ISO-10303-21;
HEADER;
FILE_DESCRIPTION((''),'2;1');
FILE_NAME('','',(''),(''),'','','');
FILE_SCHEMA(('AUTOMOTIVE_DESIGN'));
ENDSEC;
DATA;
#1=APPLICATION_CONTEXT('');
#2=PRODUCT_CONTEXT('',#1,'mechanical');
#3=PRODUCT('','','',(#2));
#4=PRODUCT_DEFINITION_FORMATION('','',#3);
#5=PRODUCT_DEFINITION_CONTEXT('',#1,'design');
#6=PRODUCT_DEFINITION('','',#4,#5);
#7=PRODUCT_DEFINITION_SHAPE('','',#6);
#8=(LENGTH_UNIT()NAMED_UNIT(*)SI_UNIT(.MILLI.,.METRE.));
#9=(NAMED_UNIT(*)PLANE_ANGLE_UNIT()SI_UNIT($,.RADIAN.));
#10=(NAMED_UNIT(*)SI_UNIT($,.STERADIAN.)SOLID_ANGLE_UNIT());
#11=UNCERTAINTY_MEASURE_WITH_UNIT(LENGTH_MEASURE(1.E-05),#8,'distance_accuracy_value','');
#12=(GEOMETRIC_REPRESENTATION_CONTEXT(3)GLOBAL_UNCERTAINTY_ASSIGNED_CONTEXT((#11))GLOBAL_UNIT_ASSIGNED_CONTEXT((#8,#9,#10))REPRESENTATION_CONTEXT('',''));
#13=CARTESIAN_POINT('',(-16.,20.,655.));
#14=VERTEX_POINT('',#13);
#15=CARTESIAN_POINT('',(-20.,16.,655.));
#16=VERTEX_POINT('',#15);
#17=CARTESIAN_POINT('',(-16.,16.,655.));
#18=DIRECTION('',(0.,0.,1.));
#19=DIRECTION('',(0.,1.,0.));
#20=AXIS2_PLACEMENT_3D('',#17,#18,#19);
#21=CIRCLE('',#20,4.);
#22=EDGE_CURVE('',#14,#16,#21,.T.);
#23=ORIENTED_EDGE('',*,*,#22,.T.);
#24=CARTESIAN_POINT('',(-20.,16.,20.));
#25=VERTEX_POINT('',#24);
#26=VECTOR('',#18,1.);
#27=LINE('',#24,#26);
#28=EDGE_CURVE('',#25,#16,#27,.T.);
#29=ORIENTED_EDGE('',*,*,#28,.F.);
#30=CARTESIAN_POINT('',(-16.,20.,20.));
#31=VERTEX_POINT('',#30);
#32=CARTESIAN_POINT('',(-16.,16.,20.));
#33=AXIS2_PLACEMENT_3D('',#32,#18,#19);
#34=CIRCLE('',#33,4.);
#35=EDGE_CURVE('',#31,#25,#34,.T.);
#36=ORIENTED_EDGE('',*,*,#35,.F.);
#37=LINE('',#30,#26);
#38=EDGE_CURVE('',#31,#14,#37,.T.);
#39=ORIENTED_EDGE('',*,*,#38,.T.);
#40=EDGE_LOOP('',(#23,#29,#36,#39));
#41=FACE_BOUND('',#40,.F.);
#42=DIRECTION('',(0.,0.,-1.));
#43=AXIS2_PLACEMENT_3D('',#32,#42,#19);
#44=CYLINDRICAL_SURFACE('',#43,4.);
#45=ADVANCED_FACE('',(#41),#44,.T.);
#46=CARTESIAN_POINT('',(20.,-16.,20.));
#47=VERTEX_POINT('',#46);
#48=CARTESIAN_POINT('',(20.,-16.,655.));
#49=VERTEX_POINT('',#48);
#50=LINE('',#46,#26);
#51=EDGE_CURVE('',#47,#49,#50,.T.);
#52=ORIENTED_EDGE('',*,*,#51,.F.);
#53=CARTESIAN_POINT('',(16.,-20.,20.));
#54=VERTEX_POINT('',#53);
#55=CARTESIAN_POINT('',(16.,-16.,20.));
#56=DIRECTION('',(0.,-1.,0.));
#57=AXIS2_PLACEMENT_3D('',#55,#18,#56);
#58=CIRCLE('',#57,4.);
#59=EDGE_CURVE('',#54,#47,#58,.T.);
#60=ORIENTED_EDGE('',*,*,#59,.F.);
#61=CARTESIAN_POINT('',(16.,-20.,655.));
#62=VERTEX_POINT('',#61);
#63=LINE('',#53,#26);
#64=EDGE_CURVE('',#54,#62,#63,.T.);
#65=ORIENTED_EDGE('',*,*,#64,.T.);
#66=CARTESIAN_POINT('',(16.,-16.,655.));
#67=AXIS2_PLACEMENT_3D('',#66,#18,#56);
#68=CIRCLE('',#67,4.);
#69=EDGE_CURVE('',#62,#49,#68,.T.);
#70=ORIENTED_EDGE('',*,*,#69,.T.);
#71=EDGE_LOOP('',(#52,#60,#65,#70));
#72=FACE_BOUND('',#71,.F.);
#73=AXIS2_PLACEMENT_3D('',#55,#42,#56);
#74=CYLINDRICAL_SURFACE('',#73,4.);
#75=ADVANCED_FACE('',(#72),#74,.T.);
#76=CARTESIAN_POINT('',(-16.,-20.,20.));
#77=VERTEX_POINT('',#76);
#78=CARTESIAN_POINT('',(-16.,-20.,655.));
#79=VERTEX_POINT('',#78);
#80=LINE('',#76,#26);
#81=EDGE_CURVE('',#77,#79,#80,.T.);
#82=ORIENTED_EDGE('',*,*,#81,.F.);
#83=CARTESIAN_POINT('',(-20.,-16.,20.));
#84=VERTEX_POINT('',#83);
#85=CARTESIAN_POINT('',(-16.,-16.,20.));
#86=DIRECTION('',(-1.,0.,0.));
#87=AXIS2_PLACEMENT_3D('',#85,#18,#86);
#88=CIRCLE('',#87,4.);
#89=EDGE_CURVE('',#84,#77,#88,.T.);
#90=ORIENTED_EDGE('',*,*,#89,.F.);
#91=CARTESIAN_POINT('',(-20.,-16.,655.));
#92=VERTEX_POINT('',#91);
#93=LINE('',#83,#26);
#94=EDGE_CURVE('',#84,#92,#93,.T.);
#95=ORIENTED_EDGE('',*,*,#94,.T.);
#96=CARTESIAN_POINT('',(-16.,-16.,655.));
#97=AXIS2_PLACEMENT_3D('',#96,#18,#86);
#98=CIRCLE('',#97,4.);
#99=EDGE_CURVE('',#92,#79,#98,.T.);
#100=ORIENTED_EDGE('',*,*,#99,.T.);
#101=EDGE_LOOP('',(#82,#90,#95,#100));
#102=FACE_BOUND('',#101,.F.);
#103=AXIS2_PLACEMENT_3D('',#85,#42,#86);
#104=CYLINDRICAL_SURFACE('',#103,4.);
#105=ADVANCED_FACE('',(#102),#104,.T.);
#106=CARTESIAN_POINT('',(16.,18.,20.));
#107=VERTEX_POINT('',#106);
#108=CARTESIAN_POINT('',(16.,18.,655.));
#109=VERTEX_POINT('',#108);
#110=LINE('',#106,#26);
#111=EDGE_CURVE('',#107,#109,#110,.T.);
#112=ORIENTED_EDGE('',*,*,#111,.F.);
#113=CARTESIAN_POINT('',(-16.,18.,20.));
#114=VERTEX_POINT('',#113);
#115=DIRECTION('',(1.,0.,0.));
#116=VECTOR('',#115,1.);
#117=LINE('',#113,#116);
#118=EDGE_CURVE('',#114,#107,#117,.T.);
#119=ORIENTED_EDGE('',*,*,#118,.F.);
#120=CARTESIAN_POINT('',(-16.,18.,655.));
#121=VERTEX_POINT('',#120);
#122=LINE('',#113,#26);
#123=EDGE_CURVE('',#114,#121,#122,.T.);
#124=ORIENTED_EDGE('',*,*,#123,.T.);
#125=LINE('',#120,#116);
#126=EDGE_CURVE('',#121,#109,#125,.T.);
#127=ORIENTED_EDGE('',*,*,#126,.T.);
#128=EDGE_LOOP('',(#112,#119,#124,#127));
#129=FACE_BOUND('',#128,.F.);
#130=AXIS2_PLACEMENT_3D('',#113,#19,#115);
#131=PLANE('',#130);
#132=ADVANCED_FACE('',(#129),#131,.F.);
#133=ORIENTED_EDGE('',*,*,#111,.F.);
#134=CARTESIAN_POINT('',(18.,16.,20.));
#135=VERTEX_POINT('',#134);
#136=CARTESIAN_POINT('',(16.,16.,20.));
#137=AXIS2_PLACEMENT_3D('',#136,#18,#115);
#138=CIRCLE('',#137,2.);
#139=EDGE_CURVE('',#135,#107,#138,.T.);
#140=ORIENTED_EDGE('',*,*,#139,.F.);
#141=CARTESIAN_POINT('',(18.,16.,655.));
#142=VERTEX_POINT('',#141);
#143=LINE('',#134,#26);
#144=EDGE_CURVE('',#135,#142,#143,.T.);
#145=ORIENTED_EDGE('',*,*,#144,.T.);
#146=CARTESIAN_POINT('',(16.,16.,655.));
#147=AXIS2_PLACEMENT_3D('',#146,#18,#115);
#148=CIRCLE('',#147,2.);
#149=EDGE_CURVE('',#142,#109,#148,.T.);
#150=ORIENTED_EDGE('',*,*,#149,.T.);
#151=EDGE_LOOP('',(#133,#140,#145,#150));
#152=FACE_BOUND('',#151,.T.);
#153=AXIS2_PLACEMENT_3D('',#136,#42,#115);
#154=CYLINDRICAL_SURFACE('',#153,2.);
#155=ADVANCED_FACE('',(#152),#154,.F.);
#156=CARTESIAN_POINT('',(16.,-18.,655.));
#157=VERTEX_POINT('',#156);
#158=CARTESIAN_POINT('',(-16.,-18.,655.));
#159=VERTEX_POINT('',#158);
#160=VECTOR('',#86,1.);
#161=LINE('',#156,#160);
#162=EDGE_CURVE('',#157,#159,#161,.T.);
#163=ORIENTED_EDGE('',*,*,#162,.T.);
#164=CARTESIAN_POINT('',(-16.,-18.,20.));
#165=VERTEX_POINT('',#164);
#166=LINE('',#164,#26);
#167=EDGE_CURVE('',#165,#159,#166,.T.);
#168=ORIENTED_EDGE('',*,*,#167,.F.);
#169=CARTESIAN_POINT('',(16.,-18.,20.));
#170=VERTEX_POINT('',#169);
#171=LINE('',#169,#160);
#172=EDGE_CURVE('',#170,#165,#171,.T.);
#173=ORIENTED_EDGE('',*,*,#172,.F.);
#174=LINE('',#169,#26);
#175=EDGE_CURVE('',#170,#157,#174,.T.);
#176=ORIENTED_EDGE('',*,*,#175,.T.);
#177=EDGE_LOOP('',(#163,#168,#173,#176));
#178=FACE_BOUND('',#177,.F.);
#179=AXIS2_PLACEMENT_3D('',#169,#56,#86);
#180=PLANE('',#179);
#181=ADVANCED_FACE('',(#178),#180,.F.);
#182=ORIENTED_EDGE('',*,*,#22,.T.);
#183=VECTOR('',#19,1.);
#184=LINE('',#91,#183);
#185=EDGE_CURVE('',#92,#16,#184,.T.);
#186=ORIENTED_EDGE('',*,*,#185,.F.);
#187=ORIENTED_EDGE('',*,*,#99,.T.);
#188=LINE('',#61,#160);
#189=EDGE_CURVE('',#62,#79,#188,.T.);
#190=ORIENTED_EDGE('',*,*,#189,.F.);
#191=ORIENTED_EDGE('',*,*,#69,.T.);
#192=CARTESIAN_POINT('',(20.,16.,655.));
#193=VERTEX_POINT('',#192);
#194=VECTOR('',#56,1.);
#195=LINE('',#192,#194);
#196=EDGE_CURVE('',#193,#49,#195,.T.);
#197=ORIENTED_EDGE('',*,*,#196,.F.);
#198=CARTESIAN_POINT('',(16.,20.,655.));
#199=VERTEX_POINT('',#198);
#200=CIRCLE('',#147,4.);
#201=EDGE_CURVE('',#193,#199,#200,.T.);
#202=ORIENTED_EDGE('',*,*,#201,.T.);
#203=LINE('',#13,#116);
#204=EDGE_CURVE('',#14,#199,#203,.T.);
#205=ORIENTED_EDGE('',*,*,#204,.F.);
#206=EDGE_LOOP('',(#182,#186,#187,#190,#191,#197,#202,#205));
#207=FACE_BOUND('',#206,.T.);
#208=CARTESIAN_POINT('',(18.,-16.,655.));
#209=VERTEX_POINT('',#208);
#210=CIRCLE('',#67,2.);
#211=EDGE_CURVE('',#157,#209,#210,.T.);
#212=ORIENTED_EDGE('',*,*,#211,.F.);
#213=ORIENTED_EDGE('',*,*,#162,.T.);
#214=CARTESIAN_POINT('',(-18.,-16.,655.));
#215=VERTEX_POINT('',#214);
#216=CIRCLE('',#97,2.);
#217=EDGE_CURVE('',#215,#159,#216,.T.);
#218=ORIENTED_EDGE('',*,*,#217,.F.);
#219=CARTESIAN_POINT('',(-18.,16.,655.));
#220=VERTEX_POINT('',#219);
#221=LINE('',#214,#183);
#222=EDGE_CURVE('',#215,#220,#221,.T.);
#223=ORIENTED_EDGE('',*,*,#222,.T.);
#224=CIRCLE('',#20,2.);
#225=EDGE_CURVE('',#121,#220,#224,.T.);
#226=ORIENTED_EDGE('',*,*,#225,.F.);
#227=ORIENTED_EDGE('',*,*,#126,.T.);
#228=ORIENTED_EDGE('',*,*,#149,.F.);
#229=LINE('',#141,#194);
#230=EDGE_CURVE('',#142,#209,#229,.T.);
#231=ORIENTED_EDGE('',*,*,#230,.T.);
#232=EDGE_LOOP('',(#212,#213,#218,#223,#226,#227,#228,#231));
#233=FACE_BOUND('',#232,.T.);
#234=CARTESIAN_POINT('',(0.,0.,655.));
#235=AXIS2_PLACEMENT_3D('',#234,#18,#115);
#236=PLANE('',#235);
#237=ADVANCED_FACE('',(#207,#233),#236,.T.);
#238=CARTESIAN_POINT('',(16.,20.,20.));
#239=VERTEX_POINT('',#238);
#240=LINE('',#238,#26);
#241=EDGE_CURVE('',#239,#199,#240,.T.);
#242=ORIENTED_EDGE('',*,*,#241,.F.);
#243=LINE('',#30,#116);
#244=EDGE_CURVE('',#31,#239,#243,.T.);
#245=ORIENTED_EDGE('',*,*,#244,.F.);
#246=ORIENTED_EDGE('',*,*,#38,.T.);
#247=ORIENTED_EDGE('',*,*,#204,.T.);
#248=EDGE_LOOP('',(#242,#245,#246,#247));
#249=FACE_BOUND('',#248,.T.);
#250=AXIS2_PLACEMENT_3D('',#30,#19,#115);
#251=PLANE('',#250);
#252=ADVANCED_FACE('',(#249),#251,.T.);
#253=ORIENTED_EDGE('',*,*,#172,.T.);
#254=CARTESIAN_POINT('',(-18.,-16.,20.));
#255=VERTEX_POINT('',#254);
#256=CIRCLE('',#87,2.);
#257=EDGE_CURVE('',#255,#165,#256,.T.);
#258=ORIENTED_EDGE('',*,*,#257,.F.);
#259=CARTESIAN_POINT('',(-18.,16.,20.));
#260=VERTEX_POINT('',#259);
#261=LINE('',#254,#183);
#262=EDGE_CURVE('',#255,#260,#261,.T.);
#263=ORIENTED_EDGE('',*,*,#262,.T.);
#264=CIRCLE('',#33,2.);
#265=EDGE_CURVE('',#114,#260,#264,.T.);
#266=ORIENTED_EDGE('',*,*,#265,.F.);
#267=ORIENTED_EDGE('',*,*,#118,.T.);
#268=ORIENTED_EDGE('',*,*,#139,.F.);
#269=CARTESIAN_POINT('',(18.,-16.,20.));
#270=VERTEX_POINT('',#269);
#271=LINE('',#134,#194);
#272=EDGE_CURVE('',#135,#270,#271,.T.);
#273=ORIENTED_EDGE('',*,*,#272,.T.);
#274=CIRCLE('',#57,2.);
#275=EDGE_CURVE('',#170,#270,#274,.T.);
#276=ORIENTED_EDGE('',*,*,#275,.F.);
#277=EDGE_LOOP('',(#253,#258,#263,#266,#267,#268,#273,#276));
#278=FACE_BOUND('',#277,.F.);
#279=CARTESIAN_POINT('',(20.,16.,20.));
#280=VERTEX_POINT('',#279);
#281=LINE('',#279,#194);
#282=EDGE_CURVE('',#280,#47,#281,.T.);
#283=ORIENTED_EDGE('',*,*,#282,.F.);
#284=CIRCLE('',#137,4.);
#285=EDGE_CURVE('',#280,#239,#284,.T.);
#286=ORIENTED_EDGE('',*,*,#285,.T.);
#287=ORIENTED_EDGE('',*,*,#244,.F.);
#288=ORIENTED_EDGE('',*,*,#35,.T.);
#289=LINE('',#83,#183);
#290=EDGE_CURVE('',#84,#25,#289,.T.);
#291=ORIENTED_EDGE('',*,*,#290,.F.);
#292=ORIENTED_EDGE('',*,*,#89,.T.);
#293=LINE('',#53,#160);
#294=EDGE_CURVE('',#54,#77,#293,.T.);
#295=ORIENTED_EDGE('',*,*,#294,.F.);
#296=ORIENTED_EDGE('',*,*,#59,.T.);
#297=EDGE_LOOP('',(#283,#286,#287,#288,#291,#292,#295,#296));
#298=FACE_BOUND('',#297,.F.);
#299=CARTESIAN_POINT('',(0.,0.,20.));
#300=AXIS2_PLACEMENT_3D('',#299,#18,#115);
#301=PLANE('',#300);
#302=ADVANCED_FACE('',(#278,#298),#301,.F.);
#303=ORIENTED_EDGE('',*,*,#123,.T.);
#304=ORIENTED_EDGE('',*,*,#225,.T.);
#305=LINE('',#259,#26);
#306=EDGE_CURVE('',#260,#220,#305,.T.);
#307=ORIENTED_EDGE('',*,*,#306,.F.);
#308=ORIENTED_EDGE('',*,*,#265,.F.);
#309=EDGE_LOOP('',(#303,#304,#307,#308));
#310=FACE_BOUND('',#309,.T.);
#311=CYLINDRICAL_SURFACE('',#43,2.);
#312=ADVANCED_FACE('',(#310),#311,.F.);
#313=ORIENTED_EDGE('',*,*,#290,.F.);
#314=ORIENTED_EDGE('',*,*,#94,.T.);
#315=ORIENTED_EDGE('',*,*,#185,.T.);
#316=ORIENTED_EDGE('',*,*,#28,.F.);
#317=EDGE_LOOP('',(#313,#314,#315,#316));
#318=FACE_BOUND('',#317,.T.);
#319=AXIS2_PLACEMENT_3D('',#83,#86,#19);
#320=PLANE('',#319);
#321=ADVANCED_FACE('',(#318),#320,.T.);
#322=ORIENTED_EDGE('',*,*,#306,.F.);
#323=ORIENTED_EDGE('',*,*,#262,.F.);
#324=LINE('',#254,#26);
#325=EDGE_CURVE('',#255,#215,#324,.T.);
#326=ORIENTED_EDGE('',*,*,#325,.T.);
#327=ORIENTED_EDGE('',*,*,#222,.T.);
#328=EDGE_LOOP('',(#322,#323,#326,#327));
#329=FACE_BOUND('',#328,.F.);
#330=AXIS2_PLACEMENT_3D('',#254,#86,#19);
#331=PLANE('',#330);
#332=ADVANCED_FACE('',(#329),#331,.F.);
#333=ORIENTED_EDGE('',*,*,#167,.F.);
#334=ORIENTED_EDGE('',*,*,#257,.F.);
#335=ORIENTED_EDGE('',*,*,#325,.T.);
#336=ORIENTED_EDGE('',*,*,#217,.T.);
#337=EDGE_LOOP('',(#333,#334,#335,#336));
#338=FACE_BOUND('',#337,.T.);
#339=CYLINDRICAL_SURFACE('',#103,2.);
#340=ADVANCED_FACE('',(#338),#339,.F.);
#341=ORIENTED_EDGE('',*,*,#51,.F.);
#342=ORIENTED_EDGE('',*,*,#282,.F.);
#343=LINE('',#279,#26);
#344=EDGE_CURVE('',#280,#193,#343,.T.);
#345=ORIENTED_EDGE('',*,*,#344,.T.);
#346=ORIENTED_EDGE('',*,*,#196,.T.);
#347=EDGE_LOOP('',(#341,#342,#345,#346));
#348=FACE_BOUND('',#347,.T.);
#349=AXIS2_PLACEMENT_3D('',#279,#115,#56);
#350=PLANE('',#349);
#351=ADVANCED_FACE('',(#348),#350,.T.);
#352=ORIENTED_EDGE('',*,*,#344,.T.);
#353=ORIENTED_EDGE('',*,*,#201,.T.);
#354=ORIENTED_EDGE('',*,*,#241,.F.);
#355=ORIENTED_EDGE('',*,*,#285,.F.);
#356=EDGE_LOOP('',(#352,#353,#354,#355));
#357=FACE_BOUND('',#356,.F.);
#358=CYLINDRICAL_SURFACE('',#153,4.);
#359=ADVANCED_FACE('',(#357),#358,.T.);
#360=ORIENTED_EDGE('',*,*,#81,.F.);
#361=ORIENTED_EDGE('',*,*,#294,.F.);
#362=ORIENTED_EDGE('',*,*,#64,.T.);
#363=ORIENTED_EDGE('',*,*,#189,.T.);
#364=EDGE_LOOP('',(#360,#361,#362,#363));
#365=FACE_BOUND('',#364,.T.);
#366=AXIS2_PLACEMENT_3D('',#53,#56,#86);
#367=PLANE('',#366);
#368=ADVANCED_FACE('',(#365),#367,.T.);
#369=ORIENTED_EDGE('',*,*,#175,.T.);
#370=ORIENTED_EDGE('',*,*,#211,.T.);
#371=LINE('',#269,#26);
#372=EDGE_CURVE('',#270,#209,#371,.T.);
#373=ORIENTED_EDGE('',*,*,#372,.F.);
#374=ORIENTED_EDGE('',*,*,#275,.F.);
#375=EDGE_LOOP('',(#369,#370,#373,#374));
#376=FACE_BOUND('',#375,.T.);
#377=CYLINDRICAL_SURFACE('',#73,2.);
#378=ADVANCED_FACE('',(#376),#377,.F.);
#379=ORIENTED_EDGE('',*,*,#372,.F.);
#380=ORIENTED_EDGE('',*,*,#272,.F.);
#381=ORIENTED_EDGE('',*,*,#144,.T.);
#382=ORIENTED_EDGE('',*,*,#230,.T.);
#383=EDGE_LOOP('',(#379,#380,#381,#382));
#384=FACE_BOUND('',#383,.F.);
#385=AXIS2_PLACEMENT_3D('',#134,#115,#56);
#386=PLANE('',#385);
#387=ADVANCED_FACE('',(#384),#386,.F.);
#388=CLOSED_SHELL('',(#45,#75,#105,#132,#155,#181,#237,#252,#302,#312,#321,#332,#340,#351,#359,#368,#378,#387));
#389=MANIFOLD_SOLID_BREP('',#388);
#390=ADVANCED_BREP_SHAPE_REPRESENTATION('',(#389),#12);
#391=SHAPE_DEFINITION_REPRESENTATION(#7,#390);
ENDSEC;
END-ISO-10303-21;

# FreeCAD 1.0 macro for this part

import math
import FreeCAD as App
import Part
import Sketcher
from FreeCAD import Vector
Q = App.Units.Quantity

doc = App.newDocument("Part")
body = doc.addObject("PartDesign::Body", "Body")

sketch1 = body.newObject("Sketcher::SketchObject", "Sketch")
sketch1.AttachmentSupport = (doc.getObject("XY_Plane"), [""])
sketch1.MapMode = "FlatFace"
sketch1.AttachmentOffset = App.Placement(Vector(0, 0, 20), App.Rotation())
sketch1.addGeometry(Part.LineSegment(Vector(-20, 16, 0), Vector(-20, -16, 0)), False)
sketch1.addGeometry(Part.ArcOfCircle(Part.Circle(Vector(-16, -16, 0), Vector(0, 0, 1), 4), math.radians(180), math.radians(270)), False)
sketch1.addGeometry(Part.LineSegment(Vector(-16, -20, 0), Vector(16, -20, 0)), False)
sketch1.addGeometry(Part.ArcOfCircle(Part.Circle(Vector(16, -16, 0), Vector(0, 0, 1), 4), math.radians(-90), math.radians(0)), False)
sketch1.addGeometry(Part.LineSegment(Vector(20, -16, 0), Vector(20, 16, 0)), False)
sketch1.addGeometry(Part.ArcOfCircle(Part.Circle(Vector(16, 16, 0), Vector(0, 0, 1), 4), math.radians(0), math.radians(90)), False)
sketch1.addGeometry(Part.LineSegment(Vector(16, 20, 0), Vector(-16, 20, 0)), False)
sketch1.addGeometry(Part.ArcOfCircle(Part.Circle(Vector(-16, 16, 0), Vector(0, 0, 1), 4), math.radians(90), math.radians(180)), False)
sketch1.addGeometry(Part.ArcOfCircle(Part.Circle(Vector(-16, 16, 0), Vector(0, 0, 1), 2), math.radians(90), math.radians(180)), False)
sketch1.addGeometry(Part.LineSegment(Vector(-16, 18, 0), Vector(16, 18, 0)), False)
sketch1.addGeometry(Part.ArcOfCircle(Part.Circle(Vector(16, 16, 0), Vector(0, 0, 1), 2), math.radians(0), math.radians(90)), False)
sketch1.addGeometry(Part.LineSegment(Vector(18, 16, 0), Vector(18, -16, 0)), False)
sketch1.addGeometry(Part.ArcOfCircle(Part.Circle(Vector(16, -16, 0), Vector(0, 0, 1), 2), math.radians(-90), math.radians(0)), False)
sketch1.addGeometry(Part.LineSegment(Vector(16, -18, 0), Vector(-16, -18, 0)), False)
sketch1.addGeometry(Part.ArcOfCircle(Part.Circle(Vector(-16, -16, 0), Vector(0, 0, 1), 2), math.radians(180), math.radians(270)), False)
sketch1.addGeometry(Part.LineSegment(Vector(-18, -16, 0), Vector(-18, 16, 0)), False)
sketch1.addConstraint(Sketcher.Constraint("Tangent", 0, 2, 1, 1))
sketch1.addConstraint(Sketcher.Constraint("Tangent", 1, 2, 2, 1))
sketch1.addConstraint(Sketcher.Constraint("Tangent", 2, 2, 3, 1))
sketch1.addConstraint(Sketcher.Constraint("Tangent", 3, 2, 4, 1))
sketch1.addConstraint(Sketcher.Constraint("Tangent", 4, 2, 5, 1))
sketch1.addConstraint(Sketcher.Constraint("Tangent", 5, 2, 6, 1))
sketch1.addConstraint(Sketcher.Constraint("Tangent", 6, 2, 7, 1))
sketch1.addConstraint(Sketcher.Constraint("Tangent", 7, 2, 0, 1))
sketch1.addConstraint(Sketcher.Constraint("Tangent", 8, 1, 9, 1))
sketch1.addConstraint(Sketcher.Constraint("Tangent", 9, 2, 10, 2))
sketch1.addConstraint(Sketcher.Constraint("Tangent", 10, 1, 11, 1))
sketch1.addConstraint(Sketcher.Constraint("Tangent", 11, 2, 12, 2))
sketch1.addConstraint(Sketcher.Constraint("Tangent", 12, 1, 13, 1))
sketch1.addConstraint(Sketcher.Constraint("Tangent", 13, 2, 14, 2))
sketch1.addConstraint(Sketcher.Constraint("Tangent", 14, 1, 15, 1))
sketch1.addConstraint(Sketcher.Constraint("Tangent", 15, 2, 8, 2))
sketch1.addConstraint(Sketcher.Constraint("Vertical", 0))
sketch1.addConstraint(Sketcher.Constraint("Horizontal", 2))
sketch1.addConstraint(Sketcher.Constraint("Vertical", 4))
sketch1.addConstraint(Sketcher.Constraint("Horizontal", 6))
sketch1.addConstraint(Sketcher.Constraint("Horizontal", 9))
sketch1.addConstraint(Sketcher.Constraint("Vertical", 11))
sketch1.addConstraint(Sketcher.Constraint("Horizontal", 13))
sketch1.addConstraint(Sketcher.Constraint("Vertical", 15))
sketch1.addConstraint(Sketcher.Constraint("Coincident", 8, 3, 7, 3))
sketch1.addConstraint(Sketcher.Constraint("Coincident", 10, 3, 5, 3))
sketch1.addConstraint(Sketcher.Constraint("Coincident", 12, 3, 3, 3))
sketch1.addConstraint(Sketcher.Constraint("Equal", 1, 3))
sketch1.addConstraint(Sketcher.Constraint("Equal", 3, 5))
sketch1.addConstraint(Sketcher.Constraint("Equal", 5, 7))
sketch1.addConstraint(Sketcher.Constraint("Equal", 12, 14))
sketch1.addConstraint(Sketcher.Constraint("Symmetric", 1, 3, 5, 3, -1, 1))
sketch1.addConstraint(Sketcher.Constraint("Equal", 13, 0))
sketch1.addConstraint(Sketcher.Constraint("Radius", 1, Q("4 mm")))
sketch1.addConstraint(Sketcher.Constraint("Radius", 8, Q("2 mm")))
sketch1.addConstraint(Sketcher.Constraint("DistanceX", 0, 2, -1, 1, Q("20 mm")))
pad1 = body.newObject("PartDesign::Pad", "Pad")
pad1.Profile = sketch1
pad1.Length = 635

doc.recompute()
